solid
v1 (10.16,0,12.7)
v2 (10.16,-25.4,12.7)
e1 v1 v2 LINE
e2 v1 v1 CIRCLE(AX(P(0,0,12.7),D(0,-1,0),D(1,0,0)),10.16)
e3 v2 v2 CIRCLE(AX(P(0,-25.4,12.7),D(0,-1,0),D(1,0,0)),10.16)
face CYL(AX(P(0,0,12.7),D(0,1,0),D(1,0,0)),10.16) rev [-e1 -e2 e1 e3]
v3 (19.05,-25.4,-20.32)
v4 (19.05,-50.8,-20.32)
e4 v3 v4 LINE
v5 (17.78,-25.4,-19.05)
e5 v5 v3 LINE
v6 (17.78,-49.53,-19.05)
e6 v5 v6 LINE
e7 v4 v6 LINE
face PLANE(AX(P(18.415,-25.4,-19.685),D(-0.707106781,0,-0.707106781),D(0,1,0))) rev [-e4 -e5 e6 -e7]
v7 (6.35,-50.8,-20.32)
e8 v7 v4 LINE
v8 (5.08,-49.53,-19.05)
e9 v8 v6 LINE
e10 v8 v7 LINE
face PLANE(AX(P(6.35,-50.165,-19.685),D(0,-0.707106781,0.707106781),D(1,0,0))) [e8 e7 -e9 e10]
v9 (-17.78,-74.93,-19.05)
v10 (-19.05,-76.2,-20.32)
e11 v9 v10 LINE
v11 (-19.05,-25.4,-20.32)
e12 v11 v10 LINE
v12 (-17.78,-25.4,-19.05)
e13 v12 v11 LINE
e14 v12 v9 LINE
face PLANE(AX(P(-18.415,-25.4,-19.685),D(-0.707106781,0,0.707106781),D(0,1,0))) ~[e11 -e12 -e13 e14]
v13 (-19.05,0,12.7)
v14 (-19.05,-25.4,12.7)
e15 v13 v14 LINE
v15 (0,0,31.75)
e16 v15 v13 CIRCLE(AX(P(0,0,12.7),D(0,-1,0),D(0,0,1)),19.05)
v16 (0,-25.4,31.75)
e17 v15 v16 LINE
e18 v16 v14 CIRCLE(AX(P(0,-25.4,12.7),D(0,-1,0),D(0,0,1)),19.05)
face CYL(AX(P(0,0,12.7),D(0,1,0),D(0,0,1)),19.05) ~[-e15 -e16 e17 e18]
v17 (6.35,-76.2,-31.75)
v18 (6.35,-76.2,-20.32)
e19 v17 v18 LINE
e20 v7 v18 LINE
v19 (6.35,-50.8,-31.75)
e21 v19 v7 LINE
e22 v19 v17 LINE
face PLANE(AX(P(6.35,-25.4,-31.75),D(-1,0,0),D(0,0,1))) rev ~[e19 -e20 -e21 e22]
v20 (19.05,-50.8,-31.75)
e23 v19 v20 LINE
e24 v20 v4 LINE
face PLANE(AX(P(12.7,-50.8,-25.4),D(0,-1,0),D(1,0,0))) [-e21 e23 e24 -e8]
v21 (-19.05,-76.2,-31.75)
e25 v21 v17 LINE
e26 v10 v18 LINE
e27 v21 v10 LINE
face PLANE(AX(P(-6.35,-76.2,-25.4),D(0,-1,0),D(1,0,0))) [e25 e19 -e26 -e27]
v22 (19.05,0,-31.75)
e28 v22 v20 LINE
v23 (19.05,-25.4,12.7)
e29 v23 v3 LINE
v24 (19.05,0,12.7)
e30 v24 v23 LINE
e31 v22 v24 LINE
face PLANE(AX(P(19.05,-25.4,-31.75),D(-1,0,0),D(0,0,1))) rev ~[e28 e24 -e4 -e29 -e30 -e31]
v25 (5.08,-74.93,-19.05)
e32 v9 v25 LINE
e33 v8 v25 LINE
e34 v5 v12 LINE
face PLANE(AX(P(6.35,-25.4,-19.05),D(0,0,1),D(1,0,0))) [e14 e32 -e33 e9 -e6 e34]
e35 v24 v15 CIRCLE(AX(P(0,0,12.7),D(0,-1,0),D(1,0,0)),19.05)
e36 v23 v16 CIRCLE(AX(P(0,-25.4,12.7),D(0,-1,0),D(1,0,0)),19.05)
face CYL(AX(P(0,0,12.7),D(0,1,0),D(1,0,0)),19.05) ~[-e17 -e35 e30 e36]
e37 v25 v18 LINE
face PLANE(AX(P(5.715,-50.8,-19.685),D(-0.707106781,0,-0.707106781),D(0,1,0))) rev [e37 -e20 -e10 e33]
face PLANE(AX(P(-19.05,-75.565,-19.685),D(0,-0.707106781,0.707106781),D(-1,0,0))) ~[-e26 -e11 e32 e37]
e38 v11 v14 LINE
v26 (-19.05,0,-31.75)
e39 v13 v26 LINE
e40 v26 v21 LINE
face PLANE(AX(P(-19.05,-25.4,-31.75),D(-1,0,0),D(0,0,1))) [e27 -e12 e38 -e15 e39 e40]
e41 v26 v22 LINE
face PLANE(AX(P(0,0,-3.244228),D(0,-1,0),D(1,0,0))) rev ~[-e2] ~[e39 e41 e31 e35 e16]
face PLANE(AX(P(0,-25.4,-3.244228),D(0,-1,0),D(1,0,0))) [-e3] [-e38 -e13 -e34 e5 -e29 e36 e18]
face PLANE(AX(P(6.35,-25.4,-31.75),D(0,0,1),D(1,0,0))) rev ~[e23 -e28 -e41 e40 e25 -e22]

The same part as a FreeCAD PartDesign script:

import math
import FreeCAD as App
import Part
import Sketcher

V = App.Vector
Q = App.Units.Quantity


def edges_at(feature, points):
    """Names of the edges that pass closest to the given points."""
    edges = feature.Shape.Edges
    near = lambda p: min(range(len(edges)), key=lambda i: edges[i].distToShape(Part.Vertex(*p))[0])
    return sorted({f"Edge{near(p) + 1}" for p in points})


def add_polygon(sketch, points):
    """Adds a closed chain of lines whose ends are joined by coincident constraints."""
    first, n = sketch.GeometryCount, len(points)
    for a, b in zip(points, points[1:] + points[:1]):
        sketch.addGeometry(Part.LineSegment(App.Vector(*a, 0), App.Vector(*b, 0)), False)
    for i in range(n):
        sketch.addConstraint(Sketcher.Constraint("Coincident", first + i, 2, first + (i + 1) % n, 1))

doc = App.newDocument("Part")
params = doc.addObject("Spreadsheet::Sheet", "Params")
for row, (alias, value) in enumerate([
    ("sketch1_diameter", "0.8 in"),
    ("sketch1_radius", "0.75 in"),
    ("sketch1_height", "1.75 in"),
    ("pad1_length", "1 in"),
    ("sketch2_width", "1 in"),
    ("sketch2_height", "0.5 in"),
    ("pad2_length", "2 in"),
    ("sketch3_width", "0.5 in"),
    ("pad3_length", "1 in"),
    ("chamfer_size", "0.05 in"),
], start=1):
    params.set(f"A{row}", alias)
    params.set(f"B{row}", "=" + value)
    params.setAlias(f"B{row}", alias)

body = doc.addObject("PartDesign::Body", "Body")

# Sketch on XZ plane
sketch1 = doc.addObject("Sketcher::SketchObject", "Sketch")
body.addObject(sketch1)
sketch1.AttachmentSupport = (doc.XZ_Plane, [""])
sketch1.MapMode = "FlatFace"
sketch1.addGeometry(Part.LineSegment(V(-19.05, 12.7, 0), V(-19.05, -31.75, 0)), False)
sketch1.addGeometry(Part.LineSegment(V(-19.05, -31.75, 0), V(19.05, -31.75, 0)), False)
sketch1.addGeometry(Part.LineSegment(V(19.05, -31.75, 0), V(19.05, 12.7, 0)), False)
sketch1.addGeometry(Part.ArcOfCircle(Part.Circle(V(0, 12.7, 0), V(0, 0, 1), 19.05), math.radians(0), math.radians(90)), False)
sketch1.addGeometry(Part.ArcOfCircle(Part.Circle(V(0, 12.7, 0), V(0, 0, 1), 19.05), math.radians(90), math.radians(180)), False)
sketch1.addGeometry(Part.Circle(V(0, 12.7, 0), V(0, 0, 1), 10.16), False)
sketch1.addConstraint(Sketcher.Constraint("Coincident", 0, 2, 1, 1))
sketch1.addConstraint(Sketcher.Constraint("Coincident", 1, 2, 2, 1))
sketch1.addConstraint(Sketcher.Constraint("Tangent", 2, 2, 3, 1))
sketch1.addConstraint(Sketcher.Constraint("Tangent", 3, 2, 4, 1))
sketch1.addConstraint(Sketcher.Constraint("Tangent", 4, 2, 0, 1))
sketch1.addConstraint(Sketcher.Constraint("Vertical", 0))
sketch1.addConstraint(Sketcher.Constraint("Horizontal", 1))
sketch1.addConstraint(Sketcher.Constraint("Vertical", 2))
sketch1.addConstraint(Sketcher.Constraint("Coincident", 5, 3, 3, 3))
sketch1.addConstraint(Sketcher.Constraint("Equal", 3, 4))
sketch1.addConstraint(Sketcher.Constraint("PointOnObject", 3, 3, -2))
sketch1.addConstraint(Sketcher.Constraint("PointOnObject", 3, 2, -2))
sketch1.addConstraint(Sketcher.Constraint("Diameter", 5, Q("0.8 in")))
sketch1.addConstraint(Sketcher.Constraint("Radius", 3, Q("0.75 in")))
sketch1.addConstraint(Sketcher.Constraint("DistanceY", 0, 2, 0, 1, Q("1.75 in")))
sketch1.addConstraint(Sketcher.Constraint("DistanceY", -1, 1, 3, 3, Q("0.5 in")))
sketch1.setExpression("Constraints[12]", "Params.sketch1_diameter")
sketch1.setExpression("Constraints[13]", "Params.sketch1_radius")
sketch1.setExpression("Constraints[14]", "Params.sketch1_height")
pad1 = doc.addObject("PartDesign::Pad", "Pad")
body.addObject(pad1)
pad1.Profile = sketch1
pad1.setExpression("Length", "Params.pad1_length")

# Sketch on XZ plane
sketch2 = doc.addObject("Sketcher::SketchObject", "Sketch001")
body.addObject(sketch2)
sketch2.AttachmentSupport = (doc.XZ_Plane, [""])
sketch2.MapMode = "FlatFace"
sketch2.AttachmentOffset = App.Placement(V(0, 0, 1 * 25.4), App.Rotation())
add_polygon(sketch2, [(-19.05, -19.05), (-19.05, -31.75), (6.35, -31.75), (6.35, -19.05)])  # lines 0-3
sketch2.addConstraint(Sketcher.Constraint("Vertical", 0))
sketch2.addConstraint(Sketcher.Constraint("Horizontal", 1))
sketch2.addConstraint(Sketcher.Constraint("Vertical", 2))
sketch2.addConstraint(Sketcher.Constraint("Horizontal", 3))
sketch2.addConstraint(Sketcher.Constraint("DistanceX", 1, 1, 1, 2, Q("1 in")))
sketch2.addConstraint(Sketcher.Constraint("DistanceY", 0, 2, 0, 1, Q("0.5 in")))
sketch2.addConstraint(Sketcher.Constraint("DistanceX", 0, 2, -1, 1, Q("0.75 in")))
sketch2.addConstraint(Sketcher.Constraint("DistanceY", 0, 2, -1, 1, Q("1.25 in")))
sketch2.setExpression("Constraints[8]", "Params.sketch2_width")
sketch2.setExpression("Constraints[9]", "Params.sketch2_height")
pad2 = doc.addObject("PartDesign::Pad", "Pad001")
body.addObject(pad2)
pad2.Profile = sketch2
pad2.setExpression("Length", "Params.pad2_length")

# Sketch on XZ plane
sketch3 = doc.addObject("Sketcher::SketchObject", "Sketch002")
body.addObject(sketch3)
sketch3.AttachmentSupport = (doc.XZ_Plane, [""])
sketch3.MapMode = "FlatFace"
sketch3.AttachmentOffset = App.Placement(V(0, 0, 1 * 25.4), App.Rotation())
add_polygon(sketch3, [(6.35, -19.05), (6.35, -31.75), (19.05, -31.75), (19.05, -19.05)])  # lines 0-3
sketch3.addConstraint(Sketcher.Constraint("Vertical", 0))
sketch3.addConstraint(Sketcher.Constraint("Horizontal", 1))
sketch3.addConstraint(Sketcher.Constraint("Vertical", 2))
sketch3.addConstraint(Sketcher.Constraint("Horizontal", 3))
sketch3.addConstraint(Sketcher.Constraint("Equal", 3, 0))
sketch3.addConstraint(Sketcher.Constraint("DistanceX", 1, 1, 1, 2, Q("0.5 in")))
sketch3.addConstraint(Sketcher.Constraint("DistanceX", -1, 1, 0, 2, Q("0.25 in")))
sketch3.addConstraint(Sketcher.Constraint("DistanceY", 0, 2, -1, 1, Q("1.25 in")))
sketch3.setExpression("Constraints[9]", "Params.sketch3_width")
pad3 = doc.addObject("PartDesign::Pad", "Pad002")
body.addObject(pad3)
pad3.Profile = sketch3
pad3.setExpression("Length", "Params.pad3_length")
doc.recompute()

chamfer = doc.addObject("PartDesign::Chamfer", "Chamfer")
body.addObject(chamfer)
chamfer.Base = (pad3, edges_at(pad3, [
    (-19.05, -50.8, -19.05),
    (-6.35, -76.2, -19.05),
    (6.35, -63.5, -19.05),
    (12.7, -50.8, -19.05),
    (19.05, -38.1, -19.05),
]))
chamfer.setExpression("Size", "Params.chamfer_size")

doc.recompute()
